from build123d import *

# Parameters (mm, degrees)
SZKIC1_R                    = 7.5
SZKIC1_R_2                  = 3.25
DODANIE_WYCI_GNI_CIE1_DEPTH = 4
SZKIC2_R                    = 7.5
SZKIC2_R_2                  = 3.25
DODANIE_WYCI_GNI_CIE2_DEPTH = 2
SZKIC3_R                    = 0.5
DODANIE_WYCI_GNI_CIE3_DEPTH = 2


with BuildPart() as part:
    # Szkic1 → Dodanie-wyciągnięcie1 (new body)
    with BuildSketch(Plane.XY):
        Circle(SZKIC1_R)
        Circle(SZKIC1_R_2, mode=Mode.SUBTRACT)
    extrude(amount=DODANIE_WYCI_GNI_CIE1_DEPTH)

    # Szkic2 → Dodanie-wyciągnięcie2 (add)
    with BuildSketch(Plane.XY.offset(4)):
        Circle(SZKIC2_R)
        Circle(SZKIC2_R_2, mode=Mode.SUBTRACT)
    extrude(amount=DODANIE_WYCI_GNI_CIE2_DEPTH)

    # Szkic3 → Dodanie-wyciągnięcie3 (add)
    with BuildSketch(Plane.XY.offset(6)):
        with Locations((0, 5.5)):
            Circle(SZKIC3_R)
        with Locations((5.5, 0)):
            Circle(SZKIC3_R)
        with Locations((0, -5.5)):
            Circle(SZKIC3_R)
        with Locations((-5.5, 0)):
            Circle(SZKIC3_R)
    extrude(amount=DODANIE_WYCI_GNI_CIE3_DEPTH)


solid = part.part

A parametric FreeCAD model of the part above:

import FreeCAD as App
import Part
import Sketcher
from FreeCAD import Vector

doc = App.newDocument("Part")
body = doc.addObject("PartDesign::Body", "Body")

sketch1 = body.newObject("Sketcher::SketchObject", "Sketch")
sketch1.AttachmentSupport = (doc.getObject("XY_Plane"), [""])
sketch1.MapMode = "FlatFace"
sketch1.addGeometry(Part.Circle(Vector(0, 0, 0), Vector(0, 0, 1), 7.5), False)
sketch1.addGeometry(Part.Circle(Vector(0, 0, 0), Vector(0, 0, 1), 3.25), False)
sketch1.addConstraint(Sketcher.Constraint("Coincident", 0, 3, -1, 1))
sketch1.addConstraint(Sketcher.Constraint("Coincident", 1, 3, -1, 1))
sketch1.addConstraint(Sketcher.Constraint("Diameter", 0, 15.0))
sketch1.addConstraint(Sketcher.Constraint("Diameter", 1, 6.5))
pad1 = body.newObject("PartDesign::Pad", "Pad")
pad1.Profile = sketch1
pad1.Length = 4

sketch2 = body.newObject("Sketcher::SketchObject", "Sketch001")
sketch2.AttachmentSupport = (doc.getObject("XY_Plane"), [""])
sketch2.MapMode = "FlatFace"
sketch2.AttachmentOffset = App.Placement(Vector(0, 0, 4), App.Rotation())
sketch2.addGeometry(Part.Circle(Vector(0, 0, 0), Vector(0, 0, 1), 7.5), False)
sketch2.addGeometry(Part.Circle(Vector(0, 0, 0), Vector(0, 0, 1), 3.25), False)
sketch2.addConstraint(Sketcher.Constraint("Coincident", 0, 3, -1, 1))
sketch2.addConstraint(Sketcher.Constraint("Coincident", 1, 3, -1, 1))
sketch2.addConstraint(Sketcher.Constraint("Diameter", 0, 15.0))
sketch2.addConstraint(Sketcher.Constraint("Diameter", 1, 6.5))
pad2 = body.newObject("PartDesign::Pad", "Pad001")
pad2.Profile = sketch2
pad2.Length = 2

sketch3 = body.newObject("Sketcher::SketchObject", "Sketch002")
sketch3.AttachmentSupport = (doc.getObject("XY_Plane"), [""])
sketch3.MapMode = "FlatFace"
sketch3.AttachmentOffset = App.Placement(Vector(0, 0, 6), App.Rotation())
sketch3.addGeometry(Part.Circle(Vector(0, 5.5, 0), Vector(0, 0, 1), 0.5), False)
sketch3.addGeometry(Part.Circle(Vector(5.5, 0, 0), Vector(0, 0, 1), 0.5), False)
sketch3.addGeometry(Part.Circle(Vector(0, -5.5, 0), Vector(0, 0, 1), 0.5), False)
sketch3.addGeometry(Part.Circle(Vector(-5.5, 0, 0), Vector(0, 0, 1), 0.5), False)
sketch3.addConstraint(Sketcher.Constraint("Equal", 0, 1))
sketch3.addConstraint(Sketcher.Constraint("Equal", 1, 2))
sketch3.addConstraint(Sketcher.Constraint("Equal", 2, 3))
sketch3.addConstraint(Sketcher.Constraint("Symmetric", 0, 3, 2, 3, -1, 1))
sketch3.addConstraint(Sketcher.Constraint("Symmetric", 1, 3, 3, 3, -1, 1))
sketch3.addConstraint(Sketcher.Constraint("PointOnObject", 0, 3, -2))
sketch3.addConstraint(Sketcher.Constraint("PointOnObject", 1, 3, -1))
sketch3.addConstraint(Sketcher.Constraint("Diameter", 0, 1.0))
sketch3.addConstraint(Sketcher.Constraint("DistanceY", 2, 3, 0, 3, 11.0))
sketch3.addConstraint(Sketcher.Constraint("DistanceX", 3, 3, 1, 3, 11.0))
pad3 = body.newObject("PartDesign::Pad", "Pad002")
pad3.Profile = sketch3
pad3.Length = 2

doc.recompute()
